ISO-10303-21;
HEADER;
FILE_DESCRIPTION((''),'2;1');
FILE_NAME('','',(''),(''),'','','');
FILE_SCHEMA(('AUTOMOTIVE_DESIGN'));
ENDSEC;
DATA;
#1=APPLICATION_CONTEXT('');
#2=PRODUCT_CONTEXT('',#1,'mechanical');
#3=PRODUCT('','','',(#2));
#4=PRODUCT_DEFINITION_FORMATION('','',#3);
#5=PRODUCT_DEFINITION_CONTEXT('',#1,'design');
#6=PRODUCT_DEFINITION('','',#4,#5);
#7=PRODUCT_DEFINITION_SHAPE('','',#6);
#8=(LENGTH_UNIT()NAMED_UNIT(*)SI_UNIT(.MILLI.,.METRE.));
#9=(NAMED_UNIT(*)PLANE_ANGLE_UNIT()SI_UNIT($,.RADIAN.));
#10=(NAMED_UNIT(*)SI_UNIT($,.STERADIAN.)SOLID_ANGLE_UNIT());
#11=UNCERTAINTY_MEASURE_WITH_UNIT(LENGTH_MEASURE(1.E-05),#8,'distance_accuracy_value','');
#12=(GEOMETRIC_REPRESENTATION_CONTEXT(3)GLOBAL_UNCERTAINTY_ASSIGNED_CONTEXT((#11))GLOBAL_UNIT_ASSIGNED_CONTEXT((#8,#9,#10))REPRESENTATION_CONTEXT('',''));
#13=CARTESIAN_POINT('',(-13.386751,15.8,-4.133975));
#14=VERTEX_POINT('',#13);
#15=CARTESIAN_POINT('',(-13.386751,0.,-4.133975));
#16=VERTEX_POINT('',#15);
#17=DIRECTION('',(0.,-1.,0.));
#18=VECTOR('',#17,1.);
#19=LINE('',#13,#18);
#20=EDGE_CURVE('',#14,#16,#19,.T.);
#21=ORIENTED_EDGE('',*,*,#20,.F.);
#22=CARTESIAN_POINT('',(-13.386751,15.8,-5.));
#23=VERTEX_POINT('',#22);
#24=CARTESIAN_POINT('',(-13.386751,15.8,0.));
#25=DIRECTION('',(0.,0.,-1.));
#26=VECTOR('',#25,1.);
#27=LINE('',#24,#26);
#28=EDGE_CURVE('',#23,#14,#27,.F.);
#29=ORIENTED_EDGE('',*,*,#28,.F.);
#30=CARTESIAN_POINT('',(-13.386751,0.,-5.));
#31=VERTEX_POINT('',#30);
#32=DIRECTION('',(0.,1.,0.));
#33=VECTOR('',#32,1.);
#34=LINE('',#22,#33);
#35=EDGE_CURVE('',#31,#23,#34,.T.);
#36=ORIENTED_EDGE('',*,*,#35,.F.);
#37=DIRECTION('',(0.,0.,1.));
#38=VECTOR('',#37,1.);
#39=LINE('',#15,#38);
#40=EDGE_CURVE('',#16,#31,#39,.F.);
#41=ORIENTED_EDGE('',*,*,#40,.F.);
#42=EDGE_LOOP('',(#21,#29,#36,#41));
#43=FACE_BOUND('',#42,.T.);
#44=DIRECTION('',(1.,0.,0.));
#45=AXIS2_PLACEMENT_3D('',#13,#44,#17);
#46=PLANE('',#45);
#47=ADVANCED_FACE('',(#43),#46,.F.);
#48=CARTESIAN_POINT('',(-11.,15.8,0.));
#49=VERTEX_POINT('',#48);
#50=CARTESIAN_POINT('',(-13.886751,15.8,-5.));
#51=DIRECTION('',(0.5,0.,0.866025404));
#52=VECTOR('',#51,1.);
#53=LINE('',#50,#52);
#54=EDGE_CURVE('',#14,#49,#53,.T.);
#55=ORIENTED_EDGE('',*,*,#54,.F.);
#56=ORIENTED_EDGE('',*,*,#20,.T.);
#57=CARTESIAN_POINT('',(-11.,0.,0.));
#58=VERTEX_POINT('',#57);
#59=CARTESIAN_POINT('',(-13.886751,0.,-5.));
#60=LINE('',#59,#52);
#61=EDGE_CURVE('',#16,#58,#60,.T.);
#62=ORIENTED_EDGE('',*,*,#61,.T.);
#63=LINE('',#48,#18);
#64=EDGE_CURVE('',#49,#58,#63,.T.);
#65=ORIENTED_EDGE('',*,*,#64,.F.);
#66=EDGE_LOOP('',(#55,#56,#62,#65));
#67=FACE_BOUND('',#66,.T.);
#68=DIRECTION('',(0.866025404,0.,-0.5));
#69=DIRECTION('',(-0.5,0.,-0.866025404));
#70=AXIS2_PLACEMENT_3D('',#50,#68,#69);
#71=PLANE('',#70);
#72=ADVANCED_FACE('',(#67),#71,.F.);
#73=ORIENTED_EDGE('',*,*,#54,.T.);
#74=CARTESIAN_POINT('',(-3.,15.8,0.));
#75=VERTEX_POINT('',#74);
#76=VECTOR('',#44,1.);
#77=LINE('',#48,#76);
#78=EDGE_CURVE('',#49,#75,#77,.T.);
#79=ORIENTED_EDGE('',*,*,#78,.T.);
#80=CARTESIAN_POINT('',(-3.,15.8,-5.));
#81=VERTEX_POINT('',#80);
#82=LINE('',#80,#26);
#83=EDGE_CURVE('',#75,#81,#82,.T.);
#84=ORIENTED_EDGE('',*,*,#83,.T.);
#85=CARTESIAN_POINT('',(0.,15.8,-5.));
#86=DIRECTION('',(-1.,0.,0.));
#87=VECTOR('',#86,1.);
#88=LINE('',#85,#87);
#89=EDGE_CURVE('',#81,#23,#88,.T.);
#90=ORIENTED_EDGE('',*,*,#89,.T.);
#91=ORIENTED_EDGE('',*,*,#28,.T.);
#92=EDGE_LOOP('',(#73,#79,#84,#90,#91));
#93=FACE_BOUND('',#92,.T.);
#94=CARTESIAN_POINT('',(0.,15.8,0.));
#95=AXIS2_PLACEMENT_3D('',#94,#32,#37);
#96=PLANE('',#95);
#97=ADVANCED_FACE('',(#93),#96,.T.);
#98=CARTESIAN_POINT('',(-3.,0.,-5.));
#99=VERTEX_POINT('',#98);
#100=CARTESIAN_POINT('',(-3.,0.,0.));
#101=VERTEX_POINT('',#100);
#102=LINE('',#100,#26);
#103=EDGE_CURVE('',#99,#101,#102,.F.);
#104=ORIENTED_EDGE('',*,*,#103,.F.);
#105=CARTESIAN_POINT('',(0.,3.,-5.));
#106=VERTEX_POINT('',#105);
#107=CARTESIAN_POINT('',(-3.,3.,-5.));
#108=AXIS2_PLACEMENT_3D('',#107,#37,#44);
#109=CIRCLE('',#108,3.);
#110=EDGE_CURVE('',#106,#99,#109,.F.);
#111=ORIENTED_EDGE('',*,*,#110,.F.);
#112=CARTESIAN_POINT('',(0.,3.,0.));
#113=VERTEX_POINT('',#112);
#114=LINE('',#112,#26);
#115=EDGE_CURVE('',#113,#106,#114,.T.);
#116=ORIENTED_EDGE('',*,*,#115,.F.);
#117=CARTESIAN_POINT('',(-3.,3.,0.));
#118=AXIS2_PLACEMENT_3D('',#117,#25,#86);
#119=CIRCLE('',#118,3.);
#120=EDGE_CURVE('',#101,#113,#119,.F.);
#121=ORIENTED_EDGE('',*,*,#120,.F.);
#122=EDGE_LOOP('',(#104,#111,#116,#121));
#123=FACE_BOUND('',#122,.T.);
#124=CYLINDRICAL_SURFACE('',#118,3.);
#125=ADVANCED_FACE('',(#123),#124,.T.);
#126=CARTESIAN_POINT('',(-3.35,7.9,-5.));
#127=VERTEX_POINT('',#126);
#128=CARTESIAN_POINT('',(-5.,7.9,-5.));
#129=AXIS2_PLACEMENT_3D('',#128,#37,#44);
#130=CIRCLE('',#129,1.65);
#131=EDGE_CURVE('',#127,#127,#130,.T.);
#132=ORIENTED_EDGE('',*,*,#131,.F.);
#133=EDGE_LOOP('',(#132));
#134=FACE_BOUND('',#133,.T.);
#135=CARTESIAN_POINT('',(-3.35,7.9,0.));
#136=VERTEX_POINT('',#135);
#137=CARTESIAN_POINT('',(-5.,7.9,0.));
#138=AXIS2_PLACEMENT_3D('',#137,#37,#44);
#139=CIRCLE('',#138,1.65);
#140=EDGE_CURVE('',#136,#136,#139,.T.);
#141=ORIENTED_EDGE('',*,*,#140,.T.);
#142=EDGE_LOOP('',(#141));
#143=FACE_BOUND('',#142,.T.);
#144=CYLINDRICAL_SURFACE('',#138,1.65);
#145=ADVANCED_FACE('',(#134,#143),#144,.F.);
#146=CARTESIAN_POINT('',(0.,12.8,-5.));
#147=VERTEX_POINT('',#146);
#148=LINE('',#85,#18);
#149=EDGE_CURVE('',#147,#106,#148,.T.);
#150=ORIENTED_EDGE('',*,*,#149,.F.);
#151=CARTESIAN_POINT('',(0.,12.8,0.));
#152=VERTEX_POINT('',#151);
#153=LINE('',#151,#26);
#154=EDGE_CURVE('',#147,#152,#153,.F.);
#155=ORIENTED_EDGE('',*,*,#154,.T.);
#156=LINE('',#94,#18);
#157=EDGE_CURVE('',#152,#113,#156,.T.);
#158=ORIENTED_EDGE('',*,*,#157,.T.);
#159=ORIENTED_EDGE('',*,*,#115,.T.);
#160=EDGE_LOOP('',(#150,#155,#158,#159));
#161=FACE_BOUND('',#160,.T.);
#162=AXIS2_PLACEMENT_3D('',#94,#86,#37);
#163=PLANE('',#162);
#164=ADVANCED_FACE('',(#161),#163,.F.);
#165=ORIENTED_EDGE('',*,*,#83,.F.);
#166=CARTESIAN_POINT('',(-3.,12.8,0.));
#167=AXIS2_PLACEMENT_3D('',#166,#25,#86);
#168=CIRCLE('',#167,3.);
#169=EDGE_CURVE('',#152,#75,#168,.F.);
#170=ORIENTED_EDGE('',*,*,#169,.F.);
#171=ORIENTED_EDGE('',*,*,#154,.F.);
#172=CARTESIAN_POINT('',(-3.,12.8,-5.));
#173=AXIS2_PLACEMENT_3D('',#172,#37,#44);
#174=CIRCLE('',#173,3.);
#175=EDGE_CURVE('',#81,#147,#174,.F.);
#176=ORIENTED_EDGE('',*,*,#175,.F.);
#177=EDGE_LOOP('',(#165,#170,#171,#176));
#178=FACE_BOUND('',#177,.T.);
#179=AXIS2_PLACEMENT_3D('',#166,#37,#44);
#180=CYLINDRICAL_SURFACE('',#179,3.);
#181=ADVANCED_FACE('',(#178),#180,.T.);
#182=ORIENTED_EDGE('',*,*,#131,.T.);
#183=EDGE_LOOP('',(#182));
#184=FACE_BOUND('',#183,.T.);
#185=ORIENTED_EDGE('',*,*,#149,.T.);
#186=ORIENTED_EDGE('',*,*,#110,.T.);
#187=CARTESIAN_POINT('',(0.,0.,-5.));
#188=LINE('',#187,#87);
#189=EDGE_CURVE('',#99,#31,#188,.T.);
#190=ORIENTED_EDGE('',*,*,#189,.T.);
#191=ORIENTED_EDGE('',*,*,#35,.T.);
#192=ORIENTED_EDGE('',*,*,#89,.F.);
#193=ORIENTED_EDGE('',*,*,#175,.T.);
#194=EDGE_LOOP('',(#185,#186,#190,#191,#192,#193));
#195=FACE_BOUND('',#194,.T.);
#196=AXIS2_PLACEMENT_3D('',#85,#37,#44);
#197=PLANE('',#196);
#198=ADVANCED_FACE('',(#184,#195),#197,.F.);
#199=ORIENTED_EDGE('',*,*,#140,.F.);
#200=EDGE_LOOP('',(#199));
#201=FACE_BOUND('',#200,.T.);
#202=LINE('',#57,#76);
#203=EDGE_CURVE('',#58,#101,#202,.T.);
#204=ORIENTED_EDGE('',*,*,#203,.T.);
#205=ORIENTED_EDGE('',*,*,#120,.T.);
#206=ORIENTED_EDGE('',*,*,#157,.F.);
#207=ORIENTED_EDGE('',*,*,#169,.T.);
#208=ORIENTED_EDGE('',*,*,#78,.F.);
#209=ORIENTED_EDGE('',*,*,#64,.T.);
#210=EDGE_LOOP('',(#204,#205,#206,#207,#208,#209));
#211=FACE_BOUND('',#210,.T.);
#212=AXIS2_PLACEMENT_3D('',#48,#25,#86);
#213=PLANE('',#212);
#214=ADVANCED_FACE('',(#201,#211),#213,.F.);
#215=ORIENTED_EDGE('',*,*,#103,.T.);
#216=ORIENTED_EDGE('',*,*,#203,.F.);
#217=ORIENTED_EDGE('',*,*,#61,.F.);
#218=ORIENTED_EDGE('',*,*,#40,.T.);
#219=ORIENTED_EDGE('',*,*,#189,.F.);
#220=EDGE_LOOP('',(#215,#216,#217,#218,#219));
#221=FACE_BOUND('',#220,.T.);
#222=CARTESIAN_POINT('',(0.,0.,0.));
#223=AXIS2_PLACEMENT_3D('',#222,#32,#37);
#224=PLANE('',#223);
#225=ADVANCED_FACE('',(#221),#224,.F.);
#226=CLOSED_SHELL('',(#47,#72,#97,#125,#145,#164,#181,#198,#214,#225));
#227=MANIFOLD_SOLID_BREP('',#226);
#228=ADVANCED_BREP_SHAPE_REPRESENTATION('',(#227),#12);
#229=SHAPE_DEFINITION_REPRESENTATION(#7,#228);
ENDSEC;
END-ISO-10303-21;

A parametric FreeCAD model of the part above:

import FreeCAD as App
import Part
import Sketcher
from FreeCAD import Vector
Q = App.Units.Quantity


def edges_at(feature, points):
    """Names of the edges that pass closest to the given points."""
    edges = feature.Shape.Edges
    near = lambda p: min(range(len(edges)), key=lambda i: edges[i].distToShape(Part.Vertex(*p))[0])
    return sorted({f"Edge{near(p) + 1}" for p in points})

doc = App.newDocument("Part")
body = doc.addObject("PartDesign::Body", "Body")

# Sketch on XZ plane
sketch1 = doc.addObject("Sketcher::SketchObject", "Sketch")
body.addObject(sketch1)
sketch1.AttachmentSupport = (doc.XZ_Plane, [""])
sketch1.MapMode = "FlatFace"
sketch1.addGeometry(Part.LineSegment(Vector(0, 0, 0), Vector(0, -5, 0)), False)
sketch1.addGeometry(Part.LineSegment(Vector(0, -5, 0), Vector(-14, -5, 0)), False)
sketch1.addGeometry(Part.LineSegment(Vector(-14, -5, 0), Vector(-11, 0, 0)), False)
sketch1.addGeometry(Part.LineSegment(Vector(-11, 0, 0), Vector(0, 0, 0)), False)
sketch1.addConstraint(Sketcher.Constraint("Coincident", 0, 2, 1, 1))
sketch1.addConstraint(Sketcher.Constraint("Coincident", 1, 2, 2, 1))
sketch1.addConstraint(Sketcher.Constraint("Coincident", 2, 2, 3, 1))
sketch1.addConstraint(Sketcher.Constraint("Coincident", 3, 2, 0, 1))
sketch1.addConstraint(Sketcher.Constraint("Vertical", 0))
sketch1.addConstraint(Sketcher.Constraint("Horizontal", 1))
sketch1.addConstraint(Sketcher.Constraint("Horizontal", 3))
sketch1.addConstraint(Sketcher.Constraint("Coincident", 3, 2, -1, 1))
sketch1.addConstraint(Sketcher.Constraint("DistanceX", 3, 1, 3, 2, 11.0))
sketch1.addConstraint(Sketcher.Constraint("DistanceY", 0, 2, 0, 1, 5.0))
sketch1.addConstraint(Sketcher.Constraint("Angle", 2, Q("60 deg")))
pad1 = doc.addObject("PartDesign::Pad", "Pad")
body.addObject(pad1)
pad1.Profile = sketch1
pad1.Length = 15.8
pad1.Reversed = True
doc.recompute()

fillet = doc.addObject("PartDesign::Fillet", "Fillet")
body.addObject(fillet)
fillet.Base = (pad1, edges_at(pad1, [(0, 0, -2.5), (0, 15.8, -2.5)]))
fillet.Radius = 3

# Sketch on XY plane
sketch2 = doc.addObject("Sketcher::SketchObject", "Sketch001")
body.addObject(sketch2)
sketch2.AttachmentSupport = (doc.XY_Plane, [""])
sketch2.MapMode = "FlatFace"
sketch2.addGeometry(Part.Circle(Vector(-5, 7.9, 0), Vector(0, 0, 1), 1.6), False)
sketch2.addConstraint(Sketcher.Constraint("Diameter", 0, 3.3))
sketch2.addConstraint(Sketcher.Constraint("DistanceX", 0, 3, -1, 1, 5.0))
sketch2.addConstraint(Sketcher.Constraint("DistanceY", -1, 1, 0, 3, 7.9))
doc.recompute()
hole = doc.addObject("PartDesign::Hole", "Hole")
body.addObject(hole)
hole.Profile = sketch2
hole.ThreadType = "None"
hole.Diameter = 3.3
hole.DepthType = "ThroughAll"
doc.recompute()

chamfer = doc.addObject("PartDesign::Chamfer", "Chamfer")
body.addObject(chamfer)
chamfer.Base = (hole, edges_at(hole, [(-13.887, 7.9, -5)]))
chamfer.ChamferType = "Two distances"
chamfer.Size = 0.5
chamfer.Size2 = 1

doc.recompute()
